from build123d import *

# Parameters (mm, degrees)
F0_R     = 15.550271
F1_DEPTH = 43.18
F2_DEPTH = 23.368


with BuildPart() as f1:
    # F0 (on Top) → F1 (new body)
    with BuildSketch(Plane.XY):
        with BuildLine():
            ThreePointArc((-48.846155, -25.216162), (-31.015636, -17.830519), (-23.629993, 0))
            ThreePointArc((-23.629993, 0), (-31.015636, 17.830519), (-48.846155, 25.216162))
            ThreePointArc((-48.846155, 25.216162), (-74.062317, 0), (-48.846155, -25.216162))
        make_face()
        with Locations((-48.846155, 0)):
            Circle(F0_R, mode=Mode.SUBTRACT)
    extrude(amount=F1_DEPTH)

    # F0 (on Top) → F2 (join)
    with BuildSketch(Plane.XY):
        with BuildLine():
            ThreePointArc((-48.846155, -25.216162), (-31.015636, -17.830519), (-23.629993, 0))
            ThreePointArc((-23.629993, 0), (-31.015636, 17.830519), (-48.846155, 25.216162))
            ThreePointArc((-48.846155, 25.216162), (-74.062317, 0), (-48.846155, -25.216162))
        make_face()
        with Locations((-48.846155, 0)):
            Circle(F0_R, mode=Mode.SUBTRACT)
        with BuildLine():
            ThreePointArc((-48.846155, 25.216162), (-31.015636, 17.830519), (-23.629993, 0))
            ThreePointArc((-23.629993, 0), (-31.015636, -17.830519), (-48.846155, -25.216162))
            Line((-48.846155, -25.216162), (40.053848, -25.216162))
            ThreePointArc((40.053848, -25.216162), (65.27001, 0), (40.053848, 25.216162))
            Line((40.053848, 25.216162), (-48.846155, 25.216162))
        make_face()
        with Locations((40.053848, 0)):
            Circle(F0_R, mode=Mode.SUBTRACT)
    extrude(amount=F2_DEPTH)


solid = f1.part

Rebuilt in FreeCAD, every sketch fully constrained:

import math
import FreeCAD as App
import Part
import Sketcher

V = App.Vector
Q = App.Units.Quantity

doc = App.newDocument("Part")
params = doc.addObject("Spreadsheet::Sheet", "Params")
for row, (alias, value) in enumerate([
    ("pad1_length", "1.7 in"),
    ("sketch2_width", "3.5000001 in"),
    ("pad2_length", "0.92 in"),
], start=1):
    params.set(f"A{row}", alias)
    params.set(f"B{row}", "=" + value)
    params.setAlias(f"B{row}", alias)

body = doc.addObject("PartDesign::Body", "Body")

# Sketch on XY plane
sketch1 = body.newObject("Sketcher::SketchObject", "Sketch")
sketch1.AttachmentSupport = (doc.getObject("XY_Plane"), [""])
sketch1.MapMode = "FlatFace"
sketch1.addGeometry([
    Part.ArcOfCircle(Part.Circle(V(-48.846155, 0, 0), V(0, 0, 1), 25.216162), math.radians(-89.999999), math.radians(-0.000001)),
    Part.ArcOfCircle(Part.Circle(V(-48.846155, 0, 0), V(0, 0, 1), 25.216162), math.radians(0.000001), math.radians(89.999999)),
    Part.ArcOfCircle(Part.Circle(V(-48.846155, 0, 0), V(0, 0, 1), 25.216162), math.radians(90), math.radians(270)),
    Part.Circle(V(-48.846155, 0, 0), V(0, 0, 1), 15.550271),
], False)
sketch1.addConstraint([
    Sketcher.Constraint("Tangent", 0, 2, 1, 1),
    Sketcher.Constraint("Tangent", 1, 2, 2, 1),
    Sketcher.Constraint("Tangent", 2, 2, 0, 1),
    Sketcher.Constraint("Coincident", 3, 3, 0, 3),
    Sketcher.Constraint("Symmetric", 1, 2, 2, 2, -1),
    Sketcher.Constraint("PointOnObject", 0, 2, -1),
    Sketcher.Constraint("Vertical", 3, 3, 1, 2),
    Sketcher.Constraint("Diameter", 3, Q("31.100542 mm")),
    Sketcher.Constraint("Radius", 0, Q("25.216162 mm")),
    Sketcher.Constraint("DistanceX", 0, 3, -1, 1, Q("48.846155 mm")),
])
pad1 = body.newObject("PartDesign::Pad", "Pad")
pad1.Profile = sketch1
pad1.setExpression("Length", "Params.pad1_length")

# Sketch on XY plane
sketch2 = body.newObject("Sketcher::SketchObject", "Sketch001")
sketch2.AttachmentSupport = (doc.getObject("XY_Plane"), [""])
sketch2.MapMode = "FlatFace"
sketch2.addGeometry([
    Part.ArcOfCircle(Part.Circle(V(-48.846155, 0, 0), V(0, 0, 1), 25.216162), math.radians(90), math.radians(270)),  # 0
    Part.LineSegment(V(-48.846155, -25.216162, 0), V(40.053848, -25.216162, 0)),  # 1
    Part.ArcOfCircle(Part.Circle(V(40.053848, 0, 0), V(0, 0, 1), 25.216162), math.radians(-90), math.radians(90)),  # 2
    Part.LineSegment(V(40.053848, 25.216162, 0), V(-48.846155, 25.216162, 0)),  # 3
    Part.Circle(V(-48.846155, 0, 0), V(0, 0, 1), 15.550271),  # 4
    Part.Circle(V(40.053848, 0, 0), V(0, 0, 1), 15.550271),  # 5
], False)
sketch2.addConstraint([
    Sketcher.Constraint("Tangent", 0, 2, 1, 1),
    Sketcher.Constraint("Tangent", 1, 2, 2, 1),
    Sketcher.Constraint("Tangent", 2, 2, 3, 1),
    Sketcher.Constraint("Tangent", 3, 2, 0, 1),
    Sketcher.Constraint("Horizontal", 1),
    Sketcher.Constraint("Horizontal", 3),
    Sketcher.Constraint("Coincident", 4, 3, 0, 3),
    Sketcher.Constraint("Coincident", 5, 3, 2, 3),
    Sketcher.Constraint("Equal", 4, 5),
    Sketcher.Constraint("PointOnObject", 0, 3, -1),
    Sketcher.Constraint("DistanceX", 1, 1, 1, 2, Q("3.5000001 in")),
    Sketcher.Constraint("Diameter", 4, Q("31.100542 mm")),
    Sketcher.Constraint("Radius", 0, Q("25.216162 mm")),
    Sketcher.Constraint("DistanceX", -1, 1, 2, 3, Q("40.053848 mm")),
])
sketch2.setExpression("Constraints[10]", "Params.sketch2_width")
pad2 = body.newObject("PartDesign::Pad", "Pad001")
pad2.Profile = sketch2
pad2.setExpression("Length", "Params.pad2_length")

doc.recompute()
